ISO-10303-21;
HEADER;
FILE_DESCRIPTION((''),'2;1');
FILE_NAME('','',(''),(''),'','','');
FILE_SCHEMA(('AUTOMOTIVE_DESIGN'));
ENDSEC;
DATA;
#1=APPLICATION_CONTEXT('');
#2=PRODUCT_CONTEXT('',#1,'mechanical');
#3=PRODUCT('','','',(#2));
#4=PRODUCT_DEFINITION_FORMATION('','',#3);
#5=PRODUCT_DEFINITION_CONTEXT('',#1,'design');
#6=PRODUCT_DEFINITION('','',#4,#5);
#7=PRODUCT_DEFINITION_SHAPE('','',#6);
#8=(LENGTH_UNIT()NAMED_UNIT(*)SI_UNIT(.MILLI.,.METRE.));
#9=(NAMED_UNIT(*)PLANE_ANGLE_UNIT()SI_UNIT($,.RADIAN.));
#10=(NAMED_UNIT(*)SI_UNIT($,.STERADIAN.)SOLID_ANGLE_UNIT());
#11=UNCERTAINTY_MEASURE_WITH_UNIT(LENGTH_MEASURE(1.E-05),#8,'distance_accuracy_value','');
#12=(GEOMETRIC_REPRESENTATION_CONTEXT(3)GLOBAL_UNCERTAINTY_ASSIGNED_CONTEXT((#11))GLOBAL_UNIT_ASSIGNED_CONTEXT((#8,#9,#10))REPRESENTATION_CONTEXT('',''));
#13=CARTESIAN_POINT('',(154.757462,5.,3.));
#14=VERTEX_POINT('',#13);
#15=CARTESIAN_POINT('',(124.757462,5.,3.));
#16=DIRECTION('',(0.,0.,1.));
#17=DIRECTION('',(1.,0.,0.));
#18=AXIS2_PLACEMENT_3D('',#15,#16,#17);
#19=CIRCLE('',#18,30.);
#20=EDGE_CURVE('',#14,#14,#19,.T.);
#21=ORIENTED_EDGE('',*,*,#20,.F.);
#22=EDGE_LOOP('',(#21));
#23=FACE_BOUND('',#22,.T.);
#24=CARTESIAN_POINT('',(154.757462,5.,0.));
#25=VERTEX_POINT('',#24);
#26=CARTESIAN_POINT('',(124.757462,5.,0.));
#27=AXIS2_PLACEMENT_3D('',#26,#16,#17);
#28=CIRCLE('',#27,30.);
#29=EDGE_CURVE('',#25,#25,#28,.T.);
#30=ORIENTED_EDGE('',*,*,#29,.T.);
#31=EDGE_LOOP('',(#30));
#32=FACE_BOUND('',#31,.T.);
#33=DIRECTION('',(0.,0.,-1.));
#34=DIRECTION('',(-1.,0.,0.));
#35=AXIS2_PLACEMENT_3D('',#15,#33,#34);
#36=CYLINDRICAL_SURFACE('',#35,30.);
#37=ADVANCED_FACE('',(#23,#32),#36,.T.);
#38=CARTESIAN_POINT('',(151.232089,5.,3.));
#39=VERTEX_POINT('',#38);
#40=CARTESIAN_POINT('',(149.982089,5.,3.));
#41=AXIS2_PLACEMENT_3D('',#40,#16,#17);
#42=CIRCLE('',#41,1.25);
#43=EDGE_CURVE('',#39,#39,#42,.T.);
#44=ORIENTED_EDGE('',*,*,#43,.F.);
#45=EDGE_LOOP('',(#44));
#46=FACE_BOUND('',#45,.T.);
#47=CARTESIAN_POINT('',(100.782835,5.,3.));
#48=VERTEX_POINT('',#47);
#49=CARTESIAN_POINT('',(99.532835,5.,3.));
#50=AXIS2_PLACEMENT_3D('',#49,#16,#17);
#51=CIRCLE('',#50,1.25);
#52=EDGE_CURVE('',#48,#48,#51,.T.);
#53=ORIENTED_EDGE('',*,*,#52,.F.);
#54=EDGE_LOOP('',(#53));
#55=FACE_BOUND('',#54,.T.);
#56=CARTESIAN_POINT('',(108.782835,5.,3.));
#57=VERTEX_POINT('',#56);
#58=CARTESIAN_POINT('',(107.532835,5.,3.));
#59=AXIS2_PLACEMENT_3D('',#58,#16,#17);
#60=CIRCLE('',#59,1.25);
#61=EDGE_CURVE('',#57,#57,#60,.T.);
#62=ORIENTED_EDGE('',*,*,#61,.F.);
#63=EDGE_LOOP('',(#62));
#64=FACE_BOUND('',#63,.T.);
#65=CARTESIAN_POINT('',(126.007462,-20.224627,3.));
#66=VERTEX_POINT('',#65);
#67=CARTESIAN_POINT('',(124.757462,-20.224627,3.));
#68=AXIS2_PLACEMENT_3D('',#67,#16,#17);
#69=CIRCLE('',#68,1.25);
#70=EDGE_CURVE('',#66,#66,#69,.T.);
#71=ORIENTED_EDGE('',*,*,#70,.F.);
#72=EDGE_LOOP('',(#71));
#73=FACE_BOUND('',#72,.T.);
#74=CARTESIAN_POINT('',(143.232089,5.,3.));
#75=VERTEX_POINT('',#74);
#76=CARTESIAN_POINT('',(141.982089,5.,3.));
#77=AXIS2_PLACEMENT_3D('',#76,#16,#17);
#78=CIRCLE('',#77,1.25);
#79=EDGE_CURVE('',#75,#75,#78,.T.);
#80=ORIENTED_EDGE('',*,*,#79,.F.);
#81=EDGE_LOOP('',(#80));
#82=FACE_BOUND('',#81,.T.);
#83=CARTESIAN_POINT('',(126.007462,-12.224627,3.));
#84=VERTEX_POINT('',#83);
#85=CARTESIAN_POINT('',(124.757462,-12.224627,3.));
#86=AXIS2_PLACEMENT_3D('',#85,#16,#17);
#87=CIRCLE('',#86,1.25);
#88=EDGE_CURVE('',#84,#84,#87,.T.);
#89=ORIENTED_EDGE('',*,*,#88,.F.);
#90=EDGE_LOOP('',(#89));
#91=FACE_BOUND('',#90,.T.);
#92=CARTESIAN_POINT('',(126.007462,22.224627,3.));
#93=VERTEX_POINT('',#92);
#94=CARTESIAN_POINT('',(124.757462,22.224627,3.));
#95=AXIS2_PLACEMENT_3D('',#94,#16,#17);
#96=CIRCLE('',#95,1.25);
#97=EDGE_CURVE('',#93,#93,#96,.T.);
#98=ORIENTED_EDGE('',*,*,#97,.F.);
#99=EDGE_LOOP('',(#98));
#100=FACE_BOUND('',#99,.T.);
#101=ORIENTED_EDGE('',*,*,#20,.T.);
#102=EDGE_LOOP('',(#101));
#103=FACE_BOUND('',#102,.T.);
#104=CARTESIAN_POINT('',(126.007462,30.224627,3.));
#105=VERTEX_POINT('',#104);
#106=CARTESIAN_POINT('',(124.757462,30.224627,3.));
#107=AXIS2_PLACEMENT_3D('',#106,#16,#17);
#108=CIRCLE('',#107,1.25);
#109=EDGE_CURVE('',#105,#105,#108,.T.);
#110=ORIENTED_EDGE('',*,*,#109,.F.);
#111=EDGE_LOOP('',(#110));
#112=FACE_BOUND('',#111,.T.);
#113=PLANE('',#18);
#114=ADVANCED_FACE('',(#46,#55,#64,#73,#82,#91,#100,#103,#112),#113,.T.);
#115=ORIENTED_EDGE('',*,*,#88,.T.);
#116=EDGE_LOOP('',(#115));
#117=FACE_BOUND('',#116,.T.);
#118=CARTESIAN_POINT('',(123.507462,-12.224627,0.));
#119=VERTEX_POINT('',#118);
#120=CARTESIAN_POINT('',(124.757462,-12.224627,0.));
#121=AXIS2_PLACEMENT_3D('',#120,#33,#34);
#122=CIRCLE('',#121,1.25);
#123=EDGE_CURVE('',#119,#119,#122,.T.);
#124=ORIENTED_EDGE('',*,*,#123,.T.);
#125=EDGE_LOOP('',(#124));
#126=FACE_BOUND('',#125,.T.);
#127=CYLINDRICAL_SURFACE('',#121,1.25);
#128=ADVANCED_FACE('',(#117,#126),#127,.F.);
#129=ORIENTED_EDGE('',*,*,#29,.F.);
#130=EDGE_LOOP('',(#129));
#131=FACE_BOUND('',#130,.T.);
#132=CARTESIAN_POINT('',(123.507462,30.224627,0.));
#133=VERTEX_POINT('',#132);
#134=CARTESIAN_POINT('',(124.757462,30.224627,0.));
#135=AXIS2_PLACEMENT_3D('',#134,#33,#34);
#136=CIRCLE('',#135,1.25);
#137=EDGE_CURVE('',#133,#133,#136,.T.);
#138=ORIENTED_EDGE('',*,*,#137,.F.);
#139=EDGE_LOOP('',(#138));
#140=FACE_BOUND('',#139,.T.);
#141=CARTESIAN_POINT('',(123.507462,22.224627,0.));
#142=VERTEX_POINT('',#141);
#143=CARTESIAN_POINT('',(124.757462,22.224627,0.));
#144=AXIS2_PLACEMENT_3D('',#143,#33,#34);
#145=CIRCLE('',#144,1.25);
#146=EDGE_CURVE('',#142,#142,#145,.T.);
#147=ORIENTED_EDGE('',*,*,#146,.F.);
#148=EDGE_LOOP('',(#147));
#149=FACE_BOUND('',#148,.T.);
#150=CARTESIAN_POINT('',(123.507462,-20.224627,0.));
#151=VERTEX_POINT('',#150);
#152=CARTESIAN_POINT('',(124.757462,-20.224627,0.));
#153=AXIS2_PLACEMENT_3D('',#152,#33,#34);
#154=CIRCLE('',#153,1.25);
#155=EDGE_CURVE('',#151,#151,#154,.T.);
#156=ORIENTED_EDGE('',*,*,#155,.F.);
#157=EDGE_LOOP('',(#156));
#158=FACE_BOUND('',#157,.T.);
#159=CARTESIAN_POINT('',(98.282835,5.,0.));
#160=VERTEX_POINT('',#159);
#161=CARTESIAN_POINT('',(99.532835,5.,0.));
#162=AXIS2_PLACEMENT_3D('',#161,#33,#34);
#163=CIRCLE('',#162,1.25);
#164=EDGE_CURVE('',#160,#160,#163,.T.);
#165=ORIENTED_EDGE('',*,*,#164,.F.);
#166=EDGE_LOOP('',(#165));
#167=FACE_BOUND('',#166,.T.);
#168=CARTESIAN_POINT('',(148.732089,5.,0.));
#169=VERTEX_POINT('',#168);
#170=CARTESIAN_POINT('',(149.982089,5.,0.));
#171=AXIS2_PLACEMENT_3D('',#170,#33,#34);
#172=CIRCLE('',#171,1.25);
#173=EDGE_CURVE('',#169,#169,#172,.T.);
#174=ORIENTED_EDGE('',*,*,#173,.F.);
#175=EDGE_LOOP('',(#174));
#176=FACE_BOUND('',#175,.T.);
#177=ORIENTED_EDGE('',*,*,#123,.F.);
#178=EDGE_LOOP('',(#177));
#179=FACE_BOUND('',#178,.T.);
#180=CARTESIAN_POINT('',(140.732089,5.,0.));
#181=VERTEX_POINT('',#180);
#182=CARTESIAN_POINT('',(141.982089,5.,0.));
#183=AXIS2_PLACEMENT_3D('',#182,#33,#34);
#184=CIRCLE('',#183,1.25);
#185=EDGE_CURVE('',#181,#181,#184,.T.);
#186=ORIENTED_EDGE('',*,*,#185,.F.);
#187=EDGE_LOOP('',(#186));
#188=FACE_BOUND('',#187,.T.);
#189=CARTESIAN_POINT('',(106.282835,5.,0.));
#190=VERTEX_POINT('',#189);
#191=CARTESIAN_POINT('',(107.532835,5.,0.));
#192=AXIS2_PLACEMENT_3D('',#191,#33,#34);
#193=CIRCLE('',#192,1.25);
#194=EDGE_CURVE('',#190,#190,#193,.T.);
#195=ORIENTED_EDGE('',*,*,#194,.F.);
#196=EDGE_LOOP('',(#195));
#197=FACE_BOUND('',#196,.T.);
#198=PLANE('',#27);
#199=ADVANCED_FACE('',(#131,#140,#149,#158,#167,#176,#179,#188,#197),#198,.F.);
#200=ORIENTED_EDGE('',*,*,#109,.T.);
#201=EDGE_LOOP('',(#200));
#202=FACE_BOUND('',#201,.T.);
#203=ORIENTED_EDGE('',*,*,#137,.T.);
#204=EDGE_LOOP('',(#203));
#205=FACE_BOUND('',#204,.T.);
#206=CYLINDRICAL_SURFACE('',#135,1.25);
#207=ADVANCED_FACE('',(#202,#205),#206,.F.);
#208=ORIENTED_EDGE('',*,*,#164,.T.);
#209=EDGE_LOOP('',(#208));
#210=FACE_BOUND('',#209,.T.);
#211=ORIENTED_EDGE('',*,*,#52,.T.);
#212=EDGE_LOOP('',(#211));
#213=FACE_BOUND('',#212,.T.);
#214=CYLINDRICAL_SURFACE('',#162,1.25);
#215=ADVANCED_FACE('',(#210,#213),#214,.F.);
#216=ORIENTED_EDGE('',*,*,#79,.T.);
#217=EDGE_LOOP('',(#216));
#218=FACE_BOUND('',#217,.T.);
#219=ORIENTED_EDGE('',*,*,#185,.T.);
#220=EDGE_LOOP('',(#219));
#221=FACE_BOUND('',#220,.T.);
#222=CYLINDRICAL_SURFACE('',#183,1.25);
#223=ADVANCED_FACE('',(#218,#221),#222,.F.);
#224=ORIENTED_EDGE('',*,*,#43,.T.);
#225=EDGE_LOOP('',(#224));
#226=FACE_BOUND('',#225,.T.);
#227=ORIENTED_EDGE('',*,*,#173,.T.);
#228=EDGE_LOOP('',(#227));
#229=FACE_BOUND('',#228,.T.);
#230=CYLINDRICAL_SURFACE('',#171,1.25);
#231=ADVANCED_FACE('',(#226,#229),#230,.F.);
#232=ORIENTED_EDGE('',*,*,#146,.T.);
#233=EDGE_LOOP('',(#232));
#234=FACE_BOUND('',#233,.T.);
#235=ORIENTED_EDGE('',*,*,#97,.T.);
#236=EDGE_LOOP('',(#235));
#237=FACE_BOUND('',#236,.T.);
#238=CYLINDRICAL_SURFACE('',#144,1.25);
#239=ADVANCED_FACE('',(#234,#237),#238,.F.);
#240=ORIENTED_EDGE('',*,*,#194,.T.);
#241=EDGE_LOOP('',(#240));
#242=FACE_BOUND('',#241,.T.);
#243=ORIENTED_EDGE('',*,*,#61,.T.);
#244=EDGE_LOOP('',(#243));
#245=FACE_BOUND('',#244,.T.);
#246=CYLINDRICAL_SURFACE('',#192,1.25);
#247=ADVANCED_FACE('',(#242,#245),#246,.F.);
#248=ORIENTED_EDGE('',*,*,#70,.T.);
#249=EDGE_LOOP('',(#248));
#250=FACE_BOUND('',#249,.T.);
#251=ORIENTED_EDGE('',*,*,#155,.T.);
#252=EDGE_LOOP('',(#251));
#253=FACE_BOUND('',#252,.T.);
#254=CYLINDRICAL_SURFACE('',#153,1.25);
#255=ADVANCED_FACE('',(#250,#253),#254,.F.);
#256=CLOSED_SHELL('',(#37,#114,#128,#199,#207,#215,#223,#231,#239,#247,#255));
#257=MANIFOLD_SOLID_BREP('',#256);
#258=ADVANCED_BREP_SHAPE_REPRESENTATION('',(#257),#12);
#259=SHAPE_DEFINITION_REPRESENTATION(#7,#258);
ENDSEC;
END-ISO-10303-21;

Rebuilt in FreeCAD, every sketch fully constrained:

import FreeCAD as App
import Part
import Sketcher
from FreeCAD import Vector
Q = App.Units.Quantity

doc = App.newDocument("Part")
body = doc.addObject("PartDesign::Body", "Body")

sketch1 = body.newObject("Sketcher::SketchObject", "Sketch")
sketch1.AttachmentSupport = (doc.getObject("XY_Plane"), [""])
sketch1.MapMode = "FlatFace"
sketch1.addGeometry(Part.Circle(Vector(124.757462, 5, 0), Vector(0, 0, 1), 30), False)
sketch1.addConstraint([
    Sketcher.Constraint("Diameter", 0, 60.0),
    Sketcher.Constraint("DistanceY", -1, 1, 0, 3, 5.0),
    Sketcher.Constraint("DistanceX", -1, 1, 0, 3, 124.757462),
])
pad1 = body.newObject("PartDesign::Pad", "Pad")
pad1.Profile = sketch1
pad1.Length = 3

sketch2 = body.newObject("Sketcher::SketchObject", "Sketch001")
sketch2.AttachmentSupport = (doc.getObject("YZ_Plane"), [""])
sketch2.MapMode = "FlatFace"
sketch2.AttachmentOffset = App.Placement(Vector(0, 0, 107.532835), App.Rotation())
sketch2.addGeometry([
    Part.LineSegment(Vector(5, 8.251076, 0), Vector(5, 0, 0)),
    Part.LineSegment(Vector(5, 0, 0), Vector(6.25, 0, 0)),
    Part.LineSegment(Vector(6.25, 0, 0), Vector(6.25, 7.5, 0)),
    Part.LineSegment(Vector(6.25, 7.5, 0), Vector(5, 8.251076, 0)),
], False)
sketch2.addGeometry(Part.LineSegment(Vector(5, 0, 0), Vector(5, 8.251076, 0)), True)
sketch2.addConstraint([
    Sketcher.Constraint("Coincident", 0, 2, 1, 1),
    Sketcher.Constraint("Coincident", 1, 2, 2, 1),
    Sketcher.Constraint("Coincident", 2, 2, 3, 1),
    Sketcher.Constraint("Coincident", 3, 2, 0, 1),
    Sketcher.Constraint("Vertical", 0),
    Sketcher.Constraint("Horizontal", 1),
    Sketcher.Constraint("Vertical", 2),
    Sketcher.Constraint("Vertical", 4),
    Sketcher.Constraint("Coincident", 4, 1, 0, 2),
    Sketcher.Constraint("PointOnObject", 0, 2, -1),
    Sketcher.Constraint("Equal", 0, 4),
    Sketcher.Constraint("Angle", 3, Q("149 deg")),
    Sketcher.Constraint("DistanceY", 2, 1, 2, 2, 7.5),
    Sketcher.Constraint("DistanceX", -1, 1, 0, 2, 5.0),
    Sketcher.Constraint("DistanceX", 1, 1, 1, 2, 1.25),
])
groove = body.newObject("PartDesign::Groove", "Groove")
groove.Profile = sketch2
groove.ReferenceAxis = (sketch2, ["Axis0"])
groove.Angle = 360
doc.recompute()

linearpattern = body.newObject("PartDesign::LinearPattern", "LinearPattern")
linearpattern.Originals = [groove]
linearpattern.Direction = (doc.getObject("X_Axis"), [""])
linearpattern.Mode = "offset"
linearpattern.Offset = 8
linearpattern.Occurrences = 2
linearpattern.Reversed = True
body.Tip = linearpattern
doc.recompute()

datumline = body.newObject("PartDesign::Line", "DatumLine")
datumline.Placement = App.Placement(Vector(124.757462, 5, 0), App.Rotation(Vector(0, 0, 1), Vector(0, 0, 1)))
polarpattern = body.newObject("PartDesign::PolarPattern", "PolarPattern")
polarpattern.Originals = [groove]
polarpattern.Axis = (datumline, [""])
polarpattern.Angle = 360
polarpattern.Occurrences = 4
body.Tip = polarpattern

sketch3 = body.newObject("Sketcher::SketchObject", "Sketch002")
sketch3.AttachmentSupport = (doc.getObject("XZ_Plane"), [""])
sketch3.MapMode = "FlatFace"
sketch3.AttachmentOffset = App.Placement(Vector(0, 0, 20.224627), App.Rotation())
sketch3.addGeometry([
    Part.LineSegment(Vector(124.757462, 8.251076, 0), Vector(124.757462, 0, 0)),
    Part.LineSegment(Vector(124.757462, 0, 0), Vector(123.507462, 0, 0)),
    Part.LineSegment(Vector(123.507462, 0, 0), Vector(123.507462, 7.5, 0)),
    Part.LineSegment(Vector(123.507462, 7.5, 0), Vector(124.757462, 8.251076, 0)),
], False)
sketch3.addGeometry(Part.LineSegment(Vector(124.757462, 0, 0), Vector(124.757462, 8.251076, 0)), True)
sketch3.addConstraint([
    Sketcher.Constraint("Coincident", 0, 2, 1, 1),
    Sketcher.Constraint("Coincident", 1, 2, 2, 1),
    Sketcher.Constraint("Coincident", 2, 2, 3, 1),
    Sketcher.Constraint("Coincident", 3, 2, 0, 1),
    Sketcher.Constraint("Vertical", 0),
    Sketcher.Constraint("Horizontal", 1),
    Sketcher.Constraint("Vertical", 2),
    Sketcher.Constraint("Vertical", 4),
    Sketcher.Constraint("Coincident", 4, 1, 0, 2),
    Sketcher.Constraint("PointOnObject", 0, 2, -1),
    Sketcher.Constraint("Equal", 0, 4),
    Sketcher.Constraint("Angle", 3, Q("31 deg")),
    Sketcher.Constraint("DistanceY", 2, 1, 2, 2, 7.5),
    Sketcher.Constraint("DistanceX", 1, 2, 1, 1, 1.25),
    Sketcher.Constraint("DistanceX", -1, 1, 0, 2, 124.757462),
])
groove2 = body.newObject("PartDesign::Groove", "Groove001")
groove2.Profile = sketch3
groove2.ReferenceAxis = (sketch3, ["Axis0"])
groove2.Angle = 360

sketch4 = body.newObject("Sketcher::SketchObject", "Sketch003")
sketch4.AttachmentSupport = (doc.getObject("YZ_Plane"), [""])
sketch4.MapMode = "FlatFace"
sketch4.AttachmentOffset = App.Placement(Vector(0, 0, 149.982089), App.Rotation())
sketch4.addGeometry([
    Part.LineSegment(Vector(5, 8.251076, 0), Vector(5, 0, 0)),
    Part.LineSegment(Vector(5, 0, 0), Vector(3.75, 0, 0)),
    Part.LineSegment(Vector(3.75, 0, 0), Vector(3.75, 7.5, 0)),
    Part.LineSegment(Vector(3.75, 7.5, 0), Vector(5, 8.251076, 0)),
], False)
sketch4.addGeometry(Part.LineSegment(Vector(5, 0, 0), Vector(5, 8.251076, 0)), True)
sketch4.addConstraint([
    Sketcher.Constraint("Coincident", 0, 2, 1, 1),
    Sketcher.Constraint("Coincident", 1, 2, 2, 1),
    Sketcher.Constraint("Coincident", 2, 2, 3, 1),
    Sketcher.Constraint("Coincident", 3, 2, 0, 1),
    Sketcher.Constraint("Vertical", 0),
    Sketcher.Constraint("Horizontal", 1),
    Sketcher.Constraint("Vertical", 2),
    Sketcher.Constraint("Vertical", 4),
    Sketcher.Constraint("Coincident", 4, 1, 0, 2),
    Sketcher.Constraint("PointOnObject", 0, 2, -1),
    Sketcher.Constraint("Equal", 0, 4),
    Sketcher.Constraint("Angle", 3, Q("31 deg")),
    Sketcher.Constraint("DistanceY", 2, 1, 2, 2, 7.5),
    Sketcher.Constraint("DistanceX", -1, 1, 0, 2, 5.0),
    Sketcher.Constraint("DistanceX", 1, 2, 1, 1, 1.25),
])
groove3 = body.newObject("PartDesign::Groove", "Groove002")
groove3.Profile = sketch4
groove3.ReferenceAxis = (sketch4, ["Axis0"])
groove3.Angle = 360

sketch5 = body.newObject("Sketcher::SketchObject", "Sketch004")
sketch5.AttachmentSupport = (doc.getObject("XZ_Plane"), [""])
sketch5.MapMode = "FlatFace"
sketch5.AttachmentOffset = App.Placement(Vector(0, 0, -30.224627), App.Rotation())
sketch5.addGeometry([
    Part.LineSegment(Vector(124.757462, 8.251076, 0), Vector(124.757462, 0, 0)),
    Part.LineSegment(Vector(124.757462, 0, 0), Vector(126.007462, 0, 0)),
    Part.LineSegment(Vector(126.007462, 0, 0), Vector(126.007462, 7.5, 0)),
    Part.LineSegment(Vector(126.007462, 7.5, 0), Vector(124.757462, 8.251076, 0)),
], False)
sketch5.addGeometry(Part.LineSegment(Vector(124.757462, 0, 0), Vector(124.757462, 8.251076, 0)), True)
sketch5.addConstraint([
    Sketcher.Constraint("Coincident", 0, 2, 1, 1),
    Sketcher.Constraint("Coincident", 1, 2, 2, 1),
    Sketcher.Constraint("Coincident", 2, 2, 3, 1),
    Sketcher.Constraint("Coincident", 3, 2, 0, 1),
    Sketcher.Constraint("Vertical", 0),
    Sketcher.Constraint("Horizontal", 1),
    Sketcher.Constraint("Vertical", 2),
    Sketcher.Constraint("Vertical", 4),
    Sketcher.Constraint("Coincident", 4, 1, 0, 2),
    Sketcher.Constraint("PointOnObject", 0, 2, -1),
    Sketcher.Constraint("Equal", 0, 4),
    Sketcher.Constraint("Angle", 3, Q("149 deg")),
    Sketcher.Constraint("DistanceY", 2, 1, 2, 2, 7.5),
    Sketcher.Constraint("DistanceX", 1, 1, 1, 2, 1.25),
    Sketcher.Constraint("DistanceX", -1, 1, 0, 2, 124.757462),
])
groove4 = body.newObject("PartDesign::Groove", "Groove003")
groove4.Profile = sketch5
groove4.ReferenceAxis = (sketch5, ["Axis0"])
groove4.Angle = 360

doc.recompute()
